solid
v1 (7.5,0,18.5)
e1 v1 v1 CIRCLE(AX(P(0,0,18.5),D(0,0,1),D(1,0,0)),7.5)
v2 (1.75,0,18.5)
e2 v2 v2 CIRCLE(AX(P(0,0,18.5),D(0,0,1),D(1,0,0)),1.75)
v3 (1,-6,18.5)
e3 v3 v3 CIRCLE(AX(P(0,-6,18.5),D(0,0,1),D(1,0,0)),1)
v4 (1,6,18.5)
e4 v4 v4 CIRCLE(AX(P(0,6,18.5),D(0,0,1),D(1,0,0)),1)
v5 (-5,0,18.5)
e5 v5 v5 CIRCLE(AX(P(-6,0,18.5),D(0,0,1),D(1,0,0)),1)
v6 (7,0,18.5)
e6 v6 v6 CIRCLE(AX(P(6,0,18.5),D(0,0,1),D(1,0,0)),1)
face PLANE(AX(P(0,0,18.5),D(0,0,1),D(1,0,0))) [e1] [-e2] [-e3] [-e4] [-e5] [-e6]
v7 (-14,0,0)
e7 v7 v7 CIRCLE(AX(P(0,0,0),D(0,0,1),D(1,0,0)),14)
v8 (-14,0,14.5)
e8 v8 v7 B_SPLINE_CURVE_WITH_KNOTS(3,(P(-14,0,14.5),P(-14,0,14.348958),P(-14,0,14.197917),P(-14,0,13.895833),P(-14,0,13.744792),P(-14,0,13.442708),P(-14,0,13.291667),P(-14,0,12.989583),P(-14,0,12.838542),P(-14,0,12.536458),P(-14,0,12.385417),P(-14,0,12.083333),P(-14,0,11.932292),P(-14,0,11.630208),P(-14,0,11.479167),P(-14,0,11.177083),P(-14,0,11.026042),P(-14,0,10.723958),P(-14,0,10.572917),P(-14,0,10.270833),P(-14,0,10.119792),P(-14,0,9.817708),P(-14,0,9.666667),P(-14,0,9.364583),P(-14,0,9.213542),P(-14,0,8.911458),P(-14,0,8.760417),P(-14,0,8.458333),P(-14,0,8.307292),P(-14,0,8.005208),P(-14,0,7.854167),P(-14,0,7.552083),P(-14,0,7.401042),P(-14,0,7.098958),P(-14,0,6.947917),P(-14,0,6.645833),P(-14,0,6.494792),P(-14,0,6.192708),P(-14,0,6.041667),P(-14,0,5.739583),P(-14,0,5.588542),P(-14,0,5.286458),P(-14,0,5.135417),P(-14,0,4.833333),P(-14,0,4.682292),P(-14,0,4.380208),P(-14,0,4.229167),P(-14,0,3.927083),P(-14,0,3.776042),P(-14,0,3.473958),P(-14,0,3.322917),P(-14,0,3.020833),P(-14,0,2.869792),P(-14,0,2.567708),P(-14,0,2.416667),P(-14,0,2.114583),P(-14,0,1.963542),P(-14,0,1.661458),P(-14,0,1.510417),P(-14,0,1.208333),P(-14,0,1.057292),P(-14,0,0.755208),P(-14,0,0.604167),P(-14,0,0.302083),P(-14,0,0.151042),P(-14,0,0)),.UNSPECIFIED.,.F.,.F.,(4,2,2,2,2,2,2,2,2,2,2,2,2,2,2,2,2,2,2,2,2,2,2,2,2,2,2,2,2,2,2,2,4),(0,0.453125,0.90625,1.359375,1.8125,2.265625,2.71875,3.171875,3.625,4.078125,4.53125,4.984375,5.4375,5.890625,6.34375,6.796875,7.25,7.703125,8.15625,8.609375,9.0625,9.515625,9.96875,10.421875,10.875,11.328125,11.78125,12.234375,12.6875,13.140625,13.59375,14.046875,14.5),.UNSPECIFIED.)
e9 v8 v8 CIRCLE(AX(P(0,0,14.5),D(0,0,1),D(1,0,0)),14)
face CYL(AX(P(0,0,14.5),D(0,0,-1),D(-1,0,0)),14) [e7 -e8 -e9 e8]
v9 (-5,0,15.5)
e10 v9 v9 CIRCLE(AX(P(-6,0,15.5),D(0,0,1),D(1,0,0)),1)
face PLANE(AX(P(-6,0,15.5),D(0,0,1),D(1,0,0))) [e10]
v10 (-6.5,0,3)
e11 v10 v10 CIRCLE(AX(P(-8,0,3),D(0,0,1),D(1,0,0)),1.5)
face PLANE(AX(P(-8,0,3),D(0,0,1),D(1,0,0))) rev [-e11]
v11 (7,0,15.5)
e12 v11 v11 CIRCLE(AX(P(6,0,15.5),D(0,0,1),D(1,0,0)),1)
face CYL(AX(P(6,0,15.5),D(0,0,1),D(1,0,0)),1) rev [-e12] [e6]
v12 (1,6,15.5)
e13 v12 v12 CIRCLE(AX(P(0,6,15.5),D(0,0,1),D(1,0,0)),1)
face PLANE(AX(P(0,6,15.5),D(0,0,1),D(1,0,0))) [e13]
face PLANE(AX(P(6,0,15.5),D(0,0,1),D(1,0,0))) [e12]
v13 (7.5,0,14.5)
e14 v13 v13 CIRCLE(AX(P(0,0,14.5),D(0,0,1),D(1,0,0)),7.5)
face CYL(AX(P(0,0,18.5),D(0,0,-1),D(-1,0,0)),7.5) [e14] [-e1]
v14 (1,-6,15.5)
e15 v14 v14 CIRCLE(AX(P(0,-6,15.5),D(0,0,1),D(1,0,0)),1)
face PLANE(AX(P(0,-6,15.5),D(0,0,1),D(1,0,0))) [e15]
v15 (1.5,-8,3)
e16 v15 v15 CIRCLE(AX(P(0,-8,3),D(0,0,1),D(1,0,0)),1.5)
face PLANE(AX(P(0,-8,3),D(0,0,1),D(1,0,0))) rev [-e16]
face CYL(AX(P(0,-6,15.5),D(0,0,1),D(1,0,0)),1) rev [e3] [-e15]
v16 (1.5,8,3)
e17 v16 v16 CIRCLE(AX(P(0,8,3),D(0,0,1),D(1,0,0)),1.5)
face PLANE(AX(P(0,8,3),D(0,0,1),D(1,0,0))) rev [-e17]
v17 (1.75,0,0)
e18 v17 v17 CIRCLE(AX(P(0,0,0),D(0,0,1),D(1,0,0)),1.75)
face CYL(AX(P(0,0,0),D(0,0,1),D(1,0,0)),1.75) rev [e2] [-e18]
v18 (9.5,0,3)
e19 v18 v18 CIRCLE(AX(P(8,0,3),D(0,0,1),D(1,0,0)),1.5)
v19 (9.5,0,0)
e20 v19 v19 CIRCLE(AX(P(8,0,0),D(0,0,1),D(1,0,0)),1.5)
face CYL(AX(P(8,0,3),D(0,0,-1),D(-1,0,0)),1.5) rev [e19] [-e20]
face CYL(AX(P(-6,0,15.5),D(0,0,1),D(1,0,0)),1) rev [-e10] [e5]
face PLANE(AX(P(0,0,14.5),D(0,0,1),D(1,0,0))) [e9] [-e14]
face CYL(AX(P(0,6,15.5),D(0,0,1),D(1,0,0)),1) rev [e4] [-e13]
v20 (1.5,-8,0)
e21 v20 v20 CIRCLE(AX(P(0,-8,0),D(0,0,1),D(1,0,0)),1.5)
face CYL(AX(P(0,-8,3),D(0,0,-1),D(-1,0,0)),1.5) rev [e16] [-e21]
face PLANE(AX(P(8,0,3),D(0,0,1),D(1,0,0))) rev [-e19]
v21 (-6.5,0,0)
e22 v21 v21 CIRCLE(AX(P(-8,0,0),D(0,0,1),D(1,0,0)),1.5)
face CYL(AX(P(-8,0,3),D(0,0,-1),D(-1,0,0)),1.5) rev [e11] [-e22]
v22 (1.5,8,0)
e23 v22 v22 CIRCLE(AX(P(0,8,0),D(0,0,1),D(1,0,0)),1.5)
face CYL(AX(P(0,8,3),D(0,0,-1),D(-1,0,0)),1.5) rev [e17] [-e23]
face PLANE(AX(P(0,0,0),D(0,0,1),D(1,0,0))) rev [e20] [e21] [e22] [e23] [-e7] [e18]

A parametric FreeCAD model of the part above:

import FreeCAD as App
import Part
import Sketcher

V = App.Vector

doc = App.newDocument("Part")
body = doc.addObject("PartDesign::Body", "Body")

# Sketch on XY plane
sketch1 = body.newObject("Sketcher::SketchObject", "Sketch")
sketch1.AttachmentSupport = (doc.getObject("XY_Plane"), [""])
sketch1.MapMode = "FlatFace"
sketch1.addGeometry(Part.Circle(V(0, 0, 0), V(0, 0, 1), 14), False)
sketch1.addConstraint(Sketcher.Constraint("Coincident", 0, 3, -1, 1))
sketch1.addConstraint(Sketcher.Constraint("Diameter", 0, 28.0))
pad1 = body.newObject("PartDesign::Pad", "Pad")
pad1.Profile = sketch1
pad1.Length = 14.5

# Sketch on XY plane
sketch2 = body.newObject("Sketcher::SketchObject", "Sketch001")
sketch2.AttachmentSupport = (doc.getObject("XY_Plane"), [""])
sketch2.MapMode = "FlatFace"
sketch2.AttachmentOffset = App.Placement(V(0, 0, 14.5), App.Rotation())
sketch2.addGeometry(Part.Circle(V(0, 0, 0), V(0, 0, 1), 8), False)
sketch2.addConstraint(Sketcher.Constraint("Coincident", 0, 3, -1, 1))
sketch2.addConstraint(Sketcher.Constraint("Diameter", 0, 15.0))
pad2 = body.newObject("PartDesign::Pad", "Pad001")
pad2.Profile = sketch2
pad2.Length = 4

# Sketch on XY plane
sketch3 = body.newObject("Sketcher::SketchObject", "Sketch002")
sketch3.AttachmentSupport = (doc.getObject("XY_Plane"), [""])
sketch3.MapMode = "FlatFace"
sketch3.AttachmentOffset = App.Placement(V(0, 0, 18.5), App.Rotation())
sketch3.addGeometry(Part.Circle(V(0, 0, 0), V(0, 0, 1), 1.8), False)
sketch3.addConstraint(Sketcher.Constraint("Coincident", 0, 3, -1, 1))
sketch3.addConstraint(Sketcher.Constraint("Diameter", 0, 3.5))
pocket1 = body.newObject("PartDesign::Pocket", "Pocket")
pocket1.Profile = sketch3
pocket1.Type = "ThroughAll"

# Sketch on XY plane
sketch4 = body.newObject("Sketcher::SketchObject", "Sketch003")
sketch4.AttachmentSupport = (doc.getObject("XY_Plane"), [""])
sketch4.MapMode = "FlatFace"
sketch4.AttachmentOffset = App.Placement(V(0, 0, 18.5), App.Rotation())
sketch4.addGeometry(Part.Circle(V(0, -6, 0), V(0, 0, 1), 1), False)
sketch4.addGeometry(Part.Circle(V(-6, 0, 0), V(0, 0, 1), 1), False)
sketch4.addGeometry(Part.Circle(V(0, 6, 0), V(0, 0, 1), 1), False)
sketch4.addGeometry(Part.Circle(V(6, 0, 0), V(0, 0, 1), 1), False)
sketch4.addConstraint(Sketcher.Constraint("Equal", 0, 1))
sketch4.addConstraint(Sketcher.Constraint("Equal", 1, 2))
sketch4.addConstraint(Sketcher.Constraint("Equal", 2, 3))
sketch4.addConstraint(Sketcher.Constraint("Symmetric", 0, 3, 2, 3, -1, 1))
sketch4.addConstraint(Sketcher.Constraint("Symmetric", 1, 3, 3, 3, -1, 1))
sketch4.addConstraint(Sketcher.Constraint("PointOnObject", 0, 3, -2))
sketch4.addConstraint(Sketcher.Constraint("PointOnObject", 1, 3, -1))
sketch4.addConstraint(Sketcher.Constraint("Diameter", 0, 2.0))
sketch4.addConstraint(Sketcher.Constraint("DistanceY", 0, 3, -1, 1, 6.0))
sketch4.addConstraint(Sketcher.Constraint("DistanceX", 1, 3, -1, 1, 6.0))
pocket2 = body.newObject("PartDesign::Pocket", "Pocket001")
pocket2.Profile = sketch4
pocket2.Length = 3

# Sketch on XY plane
sketch5 = body.newObject("Sketcher::SketchObject", "Sketch004")
sketch5.AttachmentSupport = (doc.getObject("XY_Plane"), [""])
sketch5.MapMode = "FlatFace"
sketch5.addGeometry(Part.Circle(V(0, 8, 0), V(0, 0, 1), 1.5), False)
sketch5.addGeometry(Part.Circle(V(-8, 0, 0), V(0, 0, 1), 1.5), False)
sketch5.addGeometry(Part.Circle(V(0, -8, 0), V(0, 0, 1), 1.5), False)
sketch5.addGeometry(Part.Circle(V(8, 0, 0), V(0, 0, 1), 1.5), False)
sketch5.addConstraint(Sketcher.Constraint("Equal", 0, 1))
sketch5.addConstraint(Sketcher.Constraint("Equal", 1, 2))
sketch5.addConstraint(Sketcher.Constraint("Equal", 2, 3))
sketch5.addConstraint(Sketcher.Constraint("Symmetric", 0, 3, 2, 3, -1, 1))
sketch5.addConstraint(Sketcher.Constraint("Symmetric", 1, 3, 3, 3, -1, 1))
sketch5.addConstraint(Sketcher.Constraint("PointOnObject", 0, 3, -2))
sketch5.addConstraint(Sketcher.Constraint("PointOnObject", 1, 3, -1))
sketch5.addConstraint(Sketcher.Constraint("Diameter", 0, 3.0))
sketch5.addConstraint(Sketcher.Constraint("DistanceY", -1, 1, 0, 3, 8.0))
sketch5.addConstraint(Sketcher.Constraint("DistanceX", 1, 3, -1, 1, 8.0))
pocket3 = body.newObject("PartDesign::Pocket", "Pocket002")
pocket3.Profile = sketch5
pocket3.Length = 3
pocket3.Reversed = True

doc.recompute()
